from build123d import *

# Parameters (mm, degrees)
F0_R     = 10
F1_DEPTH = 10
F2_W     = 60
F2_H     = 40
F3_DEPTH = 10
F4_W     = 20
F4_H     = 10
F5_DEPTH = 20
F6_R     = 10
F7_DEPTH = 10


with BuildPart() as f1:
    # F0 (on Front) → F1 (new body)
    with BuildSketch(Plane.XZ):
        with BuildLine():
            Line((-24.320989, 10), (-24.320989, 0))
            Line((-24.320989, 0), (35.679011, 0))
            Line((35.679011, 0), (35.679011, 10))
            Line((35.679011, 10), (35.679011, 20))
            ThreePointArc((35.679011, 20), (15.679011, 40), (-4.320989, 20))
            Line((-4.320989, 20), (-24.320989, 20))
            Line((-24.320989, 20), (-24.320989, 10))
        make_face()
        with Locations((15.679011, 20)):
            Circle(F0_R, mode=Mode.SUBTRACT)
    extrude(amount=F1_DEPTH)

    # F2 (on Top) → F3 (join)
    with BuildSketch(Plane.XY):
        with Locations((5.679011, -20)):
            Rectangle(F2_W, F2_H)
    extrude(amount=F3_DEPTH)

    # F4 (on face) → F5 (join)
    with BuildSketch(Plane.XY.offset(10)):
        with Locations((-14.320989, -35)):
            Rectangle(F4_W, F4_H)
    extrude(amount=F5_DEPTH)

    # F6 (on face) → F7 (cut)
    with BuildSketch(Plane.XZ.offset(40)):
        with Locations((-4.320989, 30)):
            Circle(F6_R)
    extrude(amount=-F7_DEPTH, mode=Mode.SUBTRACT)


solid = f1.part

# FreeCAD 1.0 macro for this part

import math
import FreeCAD as App
import Part
import Sketcher

V = App.Vector


def add_polygon(sketch, points):
    """Adds a closed chain of lines whose ends are joined by coincident constraints."""
    first, n = sketch.GeometryCount, len(points)
    for a, b in zip(points, points[1:] + points[:1]):
        sketch.addGeometry(Part.LineSegment(App.Vector(*a, 0), App.Vector(*b, 0)), False)
    for i in range(n):
        sketch.addConstraint(Sketcher.Constraint("Coincident", first + i, 2, first + (i + 1) % n, 1))

doc = App.newDocument("Part")
body = doc.addObject("PartDesign::Body", "Body")

sketch1 = body.newObject("Sketcher::SketchObject", "Sketch")
sketch1.AttachmentSupport = (doc.getObject("XZ_Plane"), [""])
sketch1.MapMode = "FlatFace"
sketch1.addGeometry([
    Part.LineSegment(V(-24, 0, 0), V(36, 0, 0)),
    Part.LineSegment(V(36, 0, 0), V(36, 20, 0)),
    Part.ArcOfCircle(Part.Circle(V(16, 20, 0), V(0, 0, 1), 20), math.radians(0), math.radians(180)),
    Part.LineSegment(V(-4, 20, 0), V(-24, 20, 0)),
    Part.LineSegment(V(-24, 20, 0), V(-24, 0, 0)),
    Part.Circle(V(16, 20, 0), V(0, 0, 1), 10),
], False)
sketch1.addConstraint([
    Sketcher.Constraint("Coincident", 0, 2, 1, 1),
    Sketcher.Constraint("Tangent", 1, 2, 2, 1),
    Sketcher.Constraint("Coincident", 2, 2, 3, 1),
    Sketcher.Constraint("Coincident", 3, 2, 4, 1),
    Sketcher.Constraint("Coincident", 4, 2, 0, 1),
    Sketcher.Constraint("Horizontal", 0),
    Sketcher.Constraint("Vertical", 1),
    Sketcher.Constraint("Horizontal", 3),
    Sketcher.Constraint("Vertical", 4),
    Sketcher.Constraint("Coincident", 5, 3, 2, 3),
    Sketcher.Constraint("PointOnObject", 0, 2, -1),
    Sketcher.Constraint("Horizontal", 1, 2, 2, 2),
    Sketcher.Constraint("Equal", 3, 1),
    Sketcher.Constraint("Diameter", 5, 20.0),
    Sketcher.Constraint("Radius", 2, 20.0),
    Sketcher.Constraint("DistanceX", 0, 1, 0, 2, 60.0),
    Sketcher.Constraint("DistanceX", -1, 1, 2, 3, 15.679011),
])
pad1 = body.newObject("PartDesign::Pad", "Pad")
pad1.Profile = sketch1
pad1.Length = 10

sketch2 = body.newObject("Sketcher::SketchObject", "Sketch001")
sketch2.AttachmentSupport = (doc.getObject("XY_Plane"), [""])
sketch2.MapMode = "FlatFace"
add_polygon(sketch2, [(-24, 0), (-24, -40), (36, -40), (36, 0)])
sketch2.addConstraint([
    Sketcher.Constraint("Vertical", 0),
    Sketcher.Constraint("Horizontal", 1),
    Sketcher.Constraint("Vertical", 2),
    Sketcher.Constraint("Horizontal", 3),
    Sketcher.Constraint("PointOnObject", 2, 2, -1),
    Sketcher.Constraint("DistanceX", 1, 1, 1, 2, 60.0),
    Sketcher.Constraint("DistanceY", 0, 2, 0, 1, 40.0),
    Sketcher.Constraint("DistanceX", 0, 2, -1, 1, 24.320989),
])
pad2 = body.newObject("PartDesign::Pad", "Pad001")
pad2.Profile = sketch2
pad2.Length = 10

sketch3 = body.newObject("Sketcher::SketchObject", "Sketch002")
sketch3.AttachmentSupport = (doc.getObject("XY_Plane"), [""])
sketch3.MapMode = "FlatFace"
sketch3.AttachmentOffset = App.Placement(V(0, 0, 10), App.Rotation())
add_polygon(sketch3, [(-24, -30), (-24, -40), (-4, -40), (-4, -30)])
sketch3.addConstraint([
    Sketcher.Constraint("Vertical", 0),
    Sketcher.Constraint("Horizontal", 1),
    Sketcher.Constraint("Vertical", 2),
    Sketcher.Constraint("Horizontal", 3),
    Sketcher.Constraint("DistanceX", 1, 1, 1, 2, 20.0),
    Sketcher.Constraint("DistanceY", 0, 2, 0, 1, 10.0),
    Sketcher.Constraint("DistanceY", 0, 2, -1, 1, 40.0),
    Sketcher.Constraint("DistanceX", 0, 2, -1, 1, 24.320989),
])
pad3 = body.newObject("PartDesign::Pad", "Pad002")
pad3.Profile = sketch3
pad3.Length = 20

sketch4 = body.newObject("Sketcher::SketchObject", "Sketch003")
sketch4.AttachmentSupport = (doc.getObject("XZ_Plane"), [""])
sketch4.MapMode = "FlatFace"
sketch4.AttachmentOffset = App.Placement(V(0, 0, 40), App.Rotation())
sketch4.addGeometry(Part.Circle(V(-4, 30, 0), V(0, 0, 1), 10), False)
sketch4.addConstraint([
    Sketcher.Constraint("Diameter", 0, 20.0),
    Sketcher.Constraint("DistanceY", -1, 1, 0, 3, 30.0),
    Sketcher.Constraint("DistanceX", 0, 3, -1, 1, 4.320989),
])
pocket1 = body.newObject("PartDesign::Pocket", "Pocket")
pocket1.Profile = sketch4
pocket1.Length = 10

doc.recompute()
